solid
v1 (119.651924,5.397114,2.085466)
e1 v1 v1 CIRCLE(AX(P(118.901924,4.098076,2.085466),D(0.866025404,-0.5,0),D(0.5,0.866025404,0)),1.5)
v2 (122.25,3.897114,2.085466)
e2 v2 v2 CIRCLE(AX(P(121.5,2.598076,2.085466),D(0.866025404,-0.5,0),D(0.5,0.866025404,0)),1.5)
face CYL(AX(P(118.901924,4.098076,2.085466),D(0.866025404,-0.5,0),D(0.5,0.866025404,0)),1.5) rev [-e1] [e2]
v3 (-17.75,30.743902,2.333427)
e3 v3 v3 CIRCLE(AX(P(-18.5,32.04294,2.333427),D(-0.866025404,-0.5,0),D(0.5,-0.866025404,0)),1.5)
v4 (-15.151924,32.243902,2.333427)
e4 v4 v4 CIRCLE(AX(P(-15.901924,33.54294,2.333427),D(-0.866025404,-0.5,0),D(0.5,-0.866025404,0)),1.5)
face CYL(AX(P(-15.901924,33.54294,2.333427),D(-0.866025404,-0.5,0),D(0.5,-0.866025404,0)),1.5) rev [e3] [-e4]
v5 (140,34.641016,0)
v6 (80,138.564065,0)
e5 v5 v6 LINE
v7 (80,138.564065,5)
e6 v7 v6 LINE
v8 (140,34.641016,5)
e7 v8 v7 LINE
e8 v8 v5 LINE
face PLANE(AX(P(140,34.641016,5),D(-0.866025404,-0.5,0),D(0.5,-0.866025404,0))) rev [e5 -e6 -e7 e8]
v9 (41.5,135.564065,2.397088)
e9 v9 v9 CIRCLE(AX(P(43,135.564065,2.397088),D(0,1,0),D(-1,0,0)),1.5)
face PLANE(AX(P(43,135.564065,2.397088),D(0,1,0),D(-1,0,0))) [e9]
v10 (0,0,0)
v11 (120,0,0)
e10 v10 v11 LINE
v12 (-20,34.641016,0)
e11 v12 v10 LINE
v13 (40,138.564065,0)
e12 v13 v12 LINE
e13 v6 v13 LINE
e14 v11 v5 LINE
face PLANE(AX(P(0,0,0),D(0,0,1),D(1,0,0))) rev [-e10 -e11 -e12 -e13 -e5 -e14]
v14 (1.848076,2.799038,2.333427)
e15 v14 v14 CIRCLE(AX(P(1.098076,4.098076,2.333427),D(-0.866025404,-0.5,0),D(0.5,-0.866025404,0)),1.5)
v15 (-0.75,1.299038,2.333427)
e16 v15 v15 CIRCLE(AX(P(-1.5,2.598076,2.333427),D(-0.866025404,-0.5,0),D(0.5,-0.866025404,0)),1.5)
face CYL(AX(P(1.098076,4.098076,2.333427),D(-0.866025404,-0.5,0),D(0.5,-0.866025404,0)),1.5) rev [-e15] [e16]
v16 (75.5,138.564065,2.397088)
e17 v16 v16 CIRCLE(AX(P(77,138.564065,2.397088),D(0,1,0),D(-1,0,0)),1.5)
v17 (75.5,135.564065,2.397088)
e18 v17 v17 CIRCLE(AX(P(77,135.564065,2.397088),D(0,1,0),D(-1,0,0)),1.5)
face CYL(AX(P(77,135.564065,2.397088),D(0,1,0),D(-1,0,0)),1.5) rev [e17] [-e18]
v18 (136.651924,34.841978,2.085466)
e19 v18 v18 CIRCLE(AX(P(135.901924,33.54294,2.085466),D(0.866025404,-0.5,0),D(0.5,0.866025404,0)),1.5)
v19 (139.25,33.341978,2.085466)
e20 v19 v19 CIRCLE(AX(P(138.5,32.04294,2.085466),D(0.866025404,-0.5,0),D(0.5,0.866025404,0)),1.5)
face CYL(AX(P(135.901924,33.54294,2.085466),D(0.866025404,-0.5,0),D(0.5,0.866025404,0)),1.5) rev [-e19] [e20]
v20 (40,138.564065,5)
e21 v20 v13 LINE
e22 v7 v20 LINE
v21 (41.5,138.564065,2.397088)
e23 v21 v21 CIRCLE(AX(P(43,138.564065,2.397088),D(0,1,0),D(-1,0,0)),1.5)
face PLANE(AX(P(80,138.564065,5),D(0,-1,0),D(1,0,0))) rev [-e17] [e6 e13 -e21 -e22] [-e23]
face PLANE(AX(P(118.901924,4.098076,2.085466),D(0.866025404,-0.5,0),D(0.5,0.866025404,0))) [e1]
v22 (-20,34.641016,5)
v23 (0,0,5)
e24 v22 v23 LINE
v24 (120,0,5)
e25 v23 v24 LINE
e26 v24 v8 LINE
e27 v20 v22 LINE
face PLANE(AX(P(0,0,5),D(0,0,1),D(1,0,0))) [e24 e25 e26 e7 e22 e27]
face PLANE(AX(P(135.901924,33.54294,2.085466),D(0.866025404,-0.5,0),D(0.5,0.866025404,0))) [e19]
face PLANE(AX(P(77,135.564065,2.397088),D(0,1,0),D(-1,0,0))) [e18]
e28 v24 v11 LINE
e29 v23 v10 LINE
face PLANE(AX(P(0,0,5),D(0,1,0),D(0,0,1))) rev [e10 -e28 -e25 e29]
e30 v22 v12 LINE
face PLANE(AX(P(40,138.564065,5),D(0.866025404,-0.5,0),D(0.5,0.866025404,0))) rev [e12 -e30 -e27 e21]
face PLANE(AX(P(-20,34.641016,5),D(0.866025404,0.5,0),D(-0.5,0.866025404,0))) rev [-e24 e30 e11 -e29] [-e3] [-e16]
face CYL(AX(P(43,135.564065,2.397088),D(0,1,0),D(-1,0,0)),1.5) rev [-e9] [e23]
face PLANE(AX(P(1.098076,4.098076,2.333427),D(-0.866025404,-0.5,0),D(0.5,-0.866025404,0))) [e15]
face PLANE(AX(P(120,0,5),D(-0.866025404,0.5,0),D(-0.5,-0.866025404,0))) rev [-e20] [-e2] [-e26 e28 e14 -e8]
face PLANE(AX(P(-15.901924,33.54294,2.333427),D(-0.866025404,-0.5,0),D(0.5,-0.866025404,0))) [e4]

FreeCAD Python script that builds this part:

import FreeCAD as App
import Part
import Sketcher
from FreeCAD import Vector
Q = App.Units.Quantity

doc = App.newDocument("Part")
body = doc.addObject("PartDesign::Body", "Body")

# Sketch on XY plane
sketch1 = body.newObject("Sketcher::SketchObject", "Sketch")
sketch1.AttachmentSupport = (doc.getObject("XY_Plane"), [""])
sketch1.MapMode = "FlatFace"
sketch1.addGeometry(Part.LineSegment(Vector(0, 0, 0), Vector(120, 0, 0)), False)
sketch1.addGeometry(Part.LineSegment(Vector(120, 0, 0), Vector(140, 35, 0)), False)
sketch1.addGeometry(Part.LineSegment(Vector(140, 35, 0), Vector(80, 139, 0)), False)
sketch1.addGeometry(Part.LineSegment(Vector(80, 139, 0), Vector(40, 139, 0)), False)
sketch1.addGeometry(Part.LineSegment(Vector(40, 139, 0), Vector(-20, 35, 0)), False)
sketch1.addGeometry(Part.LineSegment(Vector(-20, 35, 0), Vector(0, 0, 0)), False)
sketch1.addConstraint(Sketcher.Constraint("Coincident", 0, 2, 1, 1))
sketch1.addConstraint(Sketcher.Constraint("Coincident", 1, 2, 2, 1))
sketch1.addConstraint(Sketcher.Constraint("Coincident", 2, 2, 3, 1))
sketch1.addConstraint(Sketcher.Constraint("Coincident", 3, 2, 4, 1))
sketch1.addConstraint(Sketcher.Constraint("Coincident", 4, 2, 5, 1))
sketch1.addConstraint(Sketcher.Constraint("Coincident", 5, 2, 0, 1))
sketch1.addConstraint(Sketcher.Constraint("Horizontal", 0))
sketch1.addConstraint(Sketcher.Constraint("Horizontal", 3))
sketch1.addConstraint(Sketcher.Constraint("Coincident", 5, 2, -1, 1))
sketch1.addConstraint(Sketcher.Constraint("Parallel", 1, 4))
sketch1.addConstraint(Sketcher.Constraint("Parallel", 2, 5))
sketch1.addConstraint(Sketcher.Constraint("Horizontal", 1, 2, 4, 2))
sketch1.addConstraint(Sketcher.Constraint("Equal", 2, 4))
sketch1.addConstraint(Sketcher.Constraint("DistanceX", 0, 1, 0, 2, 120.0))
sketch1.addConstraint(Sketcher.Constraint("DistanceX", 3, 2, 3, 1, 40.0))
sketch1.addConstraint(Sketcher.Constraint("Angle", 1, Q("60 deg")))
sketch1.addConstraint(Sketcher.Constraint("Distance", 1, 40.0))
pad1 = body.newObject("PartDesign::Pad", "Pad")
pad1.Profile = sketch1
pad1.Length = 5

# Sketch on an angled plane
sketch2 = body.newObject("Sketcher::SketchObject", "Sketch001")
sketch2.Placement = App.Placement(Vector(0, 0, 0), App.Rotation(Vector(0, 0, 1), Vector(-0.5, 0.866025404, 0), Vector(-0.866025404, -0.5, 0), "ZXY"))
sketch2.addGeometry(Part.Circle(Vector(2.3, 37, 0), Vector(0, 0, 1), 1.5), False)
sketch2.addGeometry(Part.Circle(Vector(2.3, 3, 0), Vector(0, 0, 1), 1.5), False)
sketch2.addConstraint(Sketcher.Constraint("Equal", 0, 1))
sketch2.addConstraint(Sketcher.Constraint("Vertical", 0, 3, 1, 3))
sketch2.addConstraint(Sketcher.Constraint("Diameter", 0, 3.0))
sketch2.addConstraint(Sketcher.Constraint("DistanceY", -1, 1, 0, 3, 37.0))
sketch2.addConstraint(Sketcher.Constraint("DistanceY", -1, 1, 1, 3, 3.0))
sketch2.addConstraint(Sketcher.Constraint("DistanceX", -1, 1, 0, 3, 2.333427))
pocket1 = body.newObject("PartDesign::Pocket", "Pocket")
pocket1.Profile = sketch2
pocket1.Length = 3

# Sketch on an angled plane
sketch3 = body.newObject("Sketcher::SketchObject", "Sketch002")
sketch3.Placement = App.Placement(Vector(90, -51.961524, 0), App.Rotation(Vector(0, 0, -1), Vector(0.5, 0.866025404, 0), Vector(0.866025404, -0.5, 0), "ZXY"))
sketch3.addGeometry(Part.Circle(Vector(-2.1, 63, 0), Vector(0, 0, 1), 1.5), False)
sketch3.addGeometry(Part.Circle(Vector(-2.1, 97, 0), Vector(0, 0, 1), 1.5), False)
sketch3.addConstraint(Sketcher.Constraint("Equal", 0, 1))
sketch3.addConstraint(Sketcher.Constraint("Vertical", 0, 3, 1, 3))
sketch3.addConstraint(Sketcher.Constraint("Diameter", 0, 3.0))
sketch3.addConstraint(Sketcher.Constraint("DistanceY", -1, 1, 0, 3, 63.0))
sketch3.addConstraint(Sketcher.Constraint("DistanceY", -1, 1, 1, 3, 97.0))
sketch3.addConstraint(Sketcher.Constraint("DistanceX", 0, 3, -1, 1, 2.085466))
pocket2 = body.newObject("PartDesign::Pocket", "Pocket001")
pocket2.Profile = sketch3
pocket2.Length = 3

# Sketch on XZ plane
sketch4 = body.newObject("Sketcher::SketchObject", "Sketch003")
sketch4.AttachmentSupport = (doc.getObject("XZ_Plane"), [""])
sketch4.MapMode = "FlatFace"
sketch4.AttachmentOffset = App.Placement(Vector(0, 0, -138.564065), App.Rotation())
sketch4.addGeometry(Part.Circle(Vector(77, 2.4, 0), Vector(0, 0, 1), 1.5), False)
sketch4.addGeometry(Part.Circle(Vector(43, 2.4, 0), Vector(0, 0, 1), 1.5), False)
sketch4.addConstraint(Sketcher.Constraint("Equal", 0, 1))
sketch4.addConstraint(Sketcher.Constraint("Horizontal", 0, 3, 1, 3))
sketch4.addConstraint(Sketcher.Constraint("Diameter", 0, 3.0))
sketch4.addConstraint(Sketcher.Constraint("DistanceX", -1, 1, 0, 3, 77.0))
sketch4.addConstraint(Sketcher.Constraint("DistanceX", -1, 1, 1, 3, 43.0))
sketch4.addConstraint(Sketcher.Constraint("DistanceY", -1, 1, 0, 3, 2.397088))
pocket3 = body.newObject("PartDesign::Pocket", "Pocket002")
pocket3.Profile = sketch4
pocket3.Length = 3
pocket3.Reversed = True

doc.recompute()
